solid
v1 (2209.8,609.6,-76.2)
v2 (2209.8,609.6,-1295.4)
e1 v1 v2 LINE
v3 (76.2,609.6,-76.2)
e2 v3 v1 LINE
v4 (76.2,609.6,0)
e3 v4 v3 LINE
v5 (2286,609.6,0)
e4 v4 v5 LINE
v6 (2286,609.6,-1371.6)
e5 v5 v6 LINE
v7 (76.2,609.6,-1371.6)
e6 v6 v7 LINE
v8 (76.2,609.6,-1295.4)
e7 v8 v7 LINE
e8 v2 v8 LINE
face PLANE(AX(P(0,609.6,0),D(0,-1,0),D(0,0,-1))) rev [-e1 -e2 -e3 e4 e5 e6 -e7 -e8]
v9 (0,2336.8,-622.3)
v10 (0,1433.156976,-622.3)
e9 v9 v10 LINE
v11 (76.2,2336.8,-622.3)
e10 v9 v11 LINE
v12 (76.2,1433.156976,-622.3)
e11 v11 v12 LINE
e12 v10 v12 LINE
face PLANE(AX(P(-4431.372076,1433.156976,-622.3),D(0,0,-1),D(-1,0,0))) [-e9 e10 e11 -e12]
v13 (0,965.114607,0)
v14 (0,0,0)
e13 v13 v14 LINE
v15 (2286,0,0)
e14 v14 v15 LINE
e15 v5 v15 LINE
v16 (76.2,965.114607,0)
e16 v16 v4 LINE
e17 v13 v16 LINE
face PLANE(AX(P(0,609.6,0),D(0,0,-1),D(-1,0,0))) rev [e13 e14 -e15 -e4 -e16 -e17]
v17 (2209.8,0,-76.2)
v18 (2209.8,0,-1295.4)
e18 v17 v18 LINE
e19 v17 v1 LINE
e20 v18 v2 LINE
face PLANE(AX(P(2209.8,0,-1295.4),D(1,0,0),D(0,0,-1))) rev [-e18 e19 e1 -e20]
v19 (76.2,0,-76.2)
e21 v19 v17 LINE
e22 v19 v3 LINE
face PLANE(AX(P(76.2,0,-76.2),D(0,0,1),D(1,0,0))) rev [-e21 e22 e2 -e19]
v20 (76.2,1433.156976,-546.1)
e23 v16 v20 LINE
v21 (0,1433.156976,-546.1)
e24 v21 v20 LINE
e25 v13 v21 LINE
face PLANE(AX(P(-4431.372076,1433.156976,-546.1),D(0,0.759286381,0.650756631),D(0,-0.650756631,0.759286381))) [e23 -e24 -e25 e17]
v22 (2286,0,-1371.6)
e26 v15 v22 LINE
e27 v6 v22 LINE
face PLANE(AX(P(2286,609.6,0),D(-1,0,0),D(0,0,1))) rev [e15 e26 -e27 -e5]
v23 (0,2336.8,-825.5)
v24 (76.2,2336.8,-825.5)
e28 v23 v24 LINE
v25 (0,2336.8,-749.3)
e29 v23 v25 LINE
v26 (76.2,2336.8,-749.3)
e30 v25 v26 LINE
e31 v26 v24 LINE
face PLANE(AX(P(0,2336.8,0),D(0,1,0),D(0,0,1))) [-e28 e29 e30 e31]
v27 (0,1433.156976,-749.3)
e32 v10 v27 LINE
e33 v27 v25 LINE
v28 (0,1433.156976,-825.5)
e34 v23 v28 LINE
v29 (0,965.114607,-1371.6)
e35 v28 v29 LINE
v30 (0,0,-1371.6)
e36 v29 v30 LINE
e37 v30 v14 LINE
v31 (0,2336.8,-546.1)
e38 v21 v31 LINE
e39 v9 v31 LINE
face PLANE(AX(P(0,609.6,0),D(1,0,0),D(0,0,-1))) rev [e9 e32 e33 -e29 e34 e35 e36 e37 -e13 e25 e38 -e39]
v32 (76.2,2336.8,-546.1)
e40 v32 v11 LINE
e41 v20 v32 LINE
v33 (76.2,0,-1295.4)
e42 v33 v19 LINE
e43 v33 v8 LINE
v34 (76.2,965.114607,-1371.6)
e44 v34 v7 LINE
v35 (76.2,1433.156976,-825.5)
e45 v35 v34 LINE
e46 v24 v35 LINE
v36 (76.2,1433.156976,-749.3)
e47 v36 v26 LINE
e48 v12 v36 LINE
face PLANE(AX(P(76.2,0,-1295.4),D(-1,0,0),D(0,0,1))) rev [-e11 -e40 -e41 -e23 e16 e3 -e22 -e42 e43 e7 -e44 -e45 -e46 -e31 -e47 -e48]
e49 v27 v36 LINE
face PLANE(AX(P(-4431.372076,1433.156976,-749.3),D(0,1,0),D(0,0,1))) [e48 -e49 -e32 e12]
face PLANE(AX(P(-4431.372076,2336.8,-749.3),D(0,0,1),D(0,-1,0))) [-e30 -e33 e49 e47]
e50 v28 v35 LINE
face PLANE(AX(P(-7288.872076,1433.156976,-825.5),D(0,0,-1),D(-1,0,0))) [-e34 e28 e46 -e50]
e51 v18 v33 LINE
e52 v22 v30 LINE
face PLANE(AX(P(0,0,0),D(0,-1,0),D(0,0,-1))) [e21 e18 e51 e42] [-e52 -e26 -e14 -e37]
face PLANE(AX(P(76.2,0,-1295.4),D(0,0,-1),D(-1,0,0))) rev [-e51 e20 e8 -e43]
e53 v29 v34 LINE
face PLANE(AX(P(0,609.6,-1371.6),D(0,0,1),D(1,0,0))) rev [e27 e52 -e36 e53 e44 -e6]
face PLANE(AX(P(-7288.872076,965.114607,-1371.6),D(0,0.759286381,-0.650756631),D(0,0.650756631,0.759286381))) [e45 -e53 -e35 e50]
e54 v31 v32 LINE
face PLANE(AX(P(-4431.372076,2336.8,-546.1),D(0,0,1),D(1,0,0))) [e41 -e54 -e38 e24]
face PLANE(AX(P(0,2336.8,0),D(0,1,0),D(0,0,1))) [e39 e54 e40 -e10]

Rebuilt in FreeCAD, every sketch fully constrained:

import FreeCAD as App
import Part
import Sketcher

V = App.Vector
Q = App.Units.Quantity

doc = App.newDocument("Part")
params = doc.addObject("Spreadsheet::Sheet", "Params")
for row, (alias, value) in enumerate([
    ("sketch1_width", "90 in"),
    ("sketch1_height", "54 in"),
    ("pad1_length", "24 in"),
    ("sketch2_width", "84 in"),
    ("sketch2_height", "48 in"),
    ("pocket1_length", "24 in"),
    ("sketch3_width", "3 in"),
    ("sketch3_height", "54 in"),
    ("pad2_length", "68 in"),
    ("sketch5_height", "5 in"),
    ("sketch5_height2", "3 in"),
], start=1):
    params.set(f"A{row}", alias)
    params.set(f"B{row}", "=" + value)
    params.setAlias(f"B{row}", alias)

body = doc.addObject("PartDesign::Body", "Body")

sketch1 = body.newObject("Sketcher::SketchObject", "Sketch")
sketch1.AttachmentSupport = (doc.getObject("XZ_Plane"), [""])
sketch1.MapMode = "FlatFace"
sketch1.addGeometry([
    Part.LineSegment(V(0, -1372, 0), V(0, 0, 0)),
    Part.LineSegment(V(0, 0, 0), V(2286, 0, 0)),
    Part.LineSegment(V(2286, 0, 0), V(2286, -1372, 0)),
    Part.LineSegment(V(2286, -1372, 0), V(0, -1372, 0)),
], False)
sketch1.addConstraint([
    Sketcher.Constraint("Coincident", 0, 2, 1, 1),
    Sketcher.Constraint("Coincident", 1, 2, 2, 1),
    Sketcher.Constraint("Coincident", 2, 2, 3, 1),
    Sketcher.Constraint("Coincident", 3, 2, 0, 1),
    Sketcher.Constraint("Vertical", 0),
    Sketcher.Constraint("Horizontal", 1),
    Sketcher.Constraint("Vertical", 2),
    Sketcher.Constraint("Horizontal", 3),
    Sketcher.Constraint("Coincident", 0, 2, -1, 1),
    Sketcher.Constraint("DistanceX", 1, 1, 1, 2, Q("90 in")),
    Sketcher.Constraint("DistanceY", 0, 1, 0, 2, Q("54 in")),
])
sketch1.setExpression("Constraints[9]", "Params.sketch1_width")
sketch1.setExpression("Constraints[10]", "Params.sketch1_height")
pad1 = body.newObject("PartDesign::Pad", "Pad")
pad1.Profile = sketch1
pad1.setExpression("Length", "Params.pad1_length")
pad1.Reversed = True

sketch2 = body.newObject("Sketcher::SketchObject", "Sketch001")
sketch2.AttachmentSupport = (doc.getObject("XZ_Plane"), [""])
sketch2.MapMode = "FlatFace"
sketch2.AttachmentOffset = App.Placement(V(0, 0, -24 * 25.4), App.Rotation())
sketch2.addGeometry([
    Part.LineSegment(V(76, -1295, 0), V(76, -76, 0)),
    Part.LineSegment(V(76, -76, 0), V(2210, -76, 0)),
    Part.LineSegment(V(2210, -76, 0), V(2210, -1295, 0)),
    Part.LineSegment(V(2210, -1295, 0), V(76, -1295, 0)),
], False)
sketch2.addConstraint([
    Sketcher.Constraint("Coincident", 0, 2, 1, 1),
    Sketcher.Constraint("Coincident", 1, 2, 2, 1),
    Sketcher.Constraint("Coincident", 2, 2, 3, 1),
    Sketcher.Constraint("Coincident", 3, 2, 0, 1),
    Sketcher.Constraint("Vertical", 0),
    Sketcher.Constraint("Horizontal", 1),
    Sketcher.Constraint("Vertical", 2),
    Sketcher.Constraint("Horizontal", 3),
    Sketcher.Constraint("DistanceX", 1, 1, 1, 2, Q("84 in")),
    Sketcher.Constraint("DistanceY", 0, 1, 0, 2, Q("48 in")),
    Sketcher.Constraint("DistanceX", -1, 1, 0, 2, Q("3 in")),
    Sketcher.Constraint("DistanceY", 0, 2, -1, 1, Q("3 in")),
])
sketch2.setExpression("Constraints[8]", "Params.sketch2_width")
sketch2.setExpression("Constraints[9]", "Params.sketch2_height")
pocket1 = body.newObject("PartDesign::Pocket", "Pocket")
pocket1.Profile = sketch2
pocket1.setExpression("Length", "Params.pocket1_length")
pocket1.Reversed = True

sketch3 = body.newObject("Sketcher::SketchObject", "Sketch002")
sketch3.AttachmentSupport = (doc.getObject("XZ_Plane"), [""])
sketch3.MapMode = "FlatFace"
sketch3.AttachmentOffset = App.Placement(V(0, 0, -24 * 25.4), App.Rotation())
sketch3.addGeometry([
    Part.LineSegment(V(0, -1372, 0), V(0, 0, 0)),
    Part.LineSegment(V(0, 0, 0), V(76, 0, 0)),
    Part.LineSegment(V(76, 0, 0), V(76, -1372, 0)),
    Part.LineSegment(V(76, -1372, 0), V(0, -1372, 0)),
], False)
sketch3.addConstraint([
    Sketcher.Constraint("Coincident", 0, 2, 1, 1),
    Sketcher.Constraint("Coincident", 1, 2, 2, 1),
    Sketcher.Constraint("Coincident", 2, 2, 3, 1),
    Sketcher.Constraint("Coincident", 3, 2, 0, 1),
    Sketcher.Constraint("Vertical", 0),
    Sketcher.Constraint("Horizontal", 1),
    Sketcher.Constraint("Vertical", 2),
    Sketcher.Constraint("Horizontal", 3),
    Sketcher.Constraint("Coincident", 0, 2, -1, 1),
    Sketcher.Constraint("DistanceX", 1, 1, 1, 2, Q("3 in")),
    Sketcher.Constraint("DistanceY", 0, 1, 0, 2, Q("54 in")),
])
sketch3.setExpression("Constraints[9]", "Params.sketch3_width")
sketch3.setExpression("Constraints[10]", "Params.sketch3_height")
pad2 = body.newObject("PartDesign::Pad", "Pad001")
pad2.Profile = sketch3
pad2.setExpression("Length", "Params.pad2_length")
pad2.Reversed = True

sketch4 = body.newObject("Sketcher::SketchObject", "Sketch003")
sketch4.AttachmentSupport = (doc.getObject("YZ_Plane"), [""])
sketch4.MapMode = "FlatFace"
sketch4.addGeometry([
    Part.LineSegment(V(-2267, -5143, 0), V(1433, -826, 0)),
    Part.LineSegment(V(1433, -826, 0), V(7303, -826, 0)),
    Part.LineSegment(V(7303, -826, 0), V(11388, -9880, 0)),
    Part.LineSegment(V(11388, -9880, 0), V(1818, -14197, 0)),
    Part.LineSegment(V(1818, -14197, 0), V(-2267, -5143, 0)),
], False)
sketch4.addConstraint([
    Sketcher.Constraint("Coincident", 0, 2, 1, 1),
    Sketcher.Constraint("Coincident", 1, 2, 2, 1),
    Sketcher.Constraint("Coincident", 2, 2, 3, 1),
    Sketcher.Constraint("Coincident", 3, 2, 4, 1),
    Sketcher.Constraint("Coincident", 4, 2, 0, 1),
    Sketcher.Constraint("Horizontal", 1),
    Sketcher.Constraint("Perpendicular", 2, 3),
    Sketcher.Constraint("Perpendicular", 3, 4),
    Sketcher.Constraint("Equal", 2, 4),
    Sketcher.Constraint("DistanceY", 0, 2, -1, 1, Q("32.5 in")),
    Sketcher.Constraint("Distance", 3, 10499.095181),
    Sketcher.Constraint("DistanceX", 1, 1, 1, 2, 5870.288862),
    Sketcher.Constraint("DistanceX", -1, 1, 2, 2, 11387.995131),
    Sketcher.Constraint("DistanceY", 2, 2, -1, 1, 9880.152979),
    Sketcher.Constraint("DistanceX", -1, 1, 3, 2, 1817.58619),
])
pocket2 = body.newObject("PartDesign::Pocket", "Pocket001")
pocket2.Profile = sketch4
pocket2.Type = "ThroughAll"
pocket2.Midplane = True

sketch5 = body.newObject("Sketcher::SketchObject", "Sketch004")
sketch5.AttachmentSupport = (doc.getObject("YZ_Plane"), [""])
sketch5.MapMode = "FlatFace"
sketch5.addGeometry([
    Part.LineSegment(V(2337, -5792, 0), V(2337, -749, 0)),
    Part.LineSegment(V(2337, -749, 0), V(1433, -749, 0)),
    Part.LineSegment(V(1433, -749, 0), V(1433, -622, 0)),
    Part.LineSegment(V(1433, -622, 0), V(2337, -622, 0)),
    Part.LineSegment(V(2337, -622, 0), V(2337, -546, 0)),
    Part.LineSegment(V(2337, -546, 0), V(1433, -546, 0)),
    Part.LineSegment(V(1433, -546, 0), V(-2267, 3771, 0)),
    Part.LineSegment(V(-2267, 3771, 0), V(6683, 8080, 0)),
    Part.LineSegment(V(6683, 8080, 0), V(11287, -1484, 0)),
    Part.LineSegment(V(11287, -1484, 0), V(2337, -5792, 0)),
], False)
sketch5.addConstraint([
    Sketcher.Constraint("Coincident", 0, 2, 1, 1),
    Sketcher.Constraint("Coincident", 1, 2, 2, 1),
    Sketcher.Constraint("Coincident", 2, 2, 3, 1),
    Sketcher.Constraint("Coincident", 3, 2, 4, 1),
    Sketcher.Constraint("Coincident", 4, 2, 5, 1),
    Sketcher.Constraint("Coincident", 5, 2, 6, 1),
    Sketcher.Constraint("Coincident", 6, 2, 7, 1),
    Sketcher.Constraint("Coincident", 7, 2, 8, 1),
    Sketcher.Constraint("Coincident", 8, 2, 9, 1),
    Sketcher.Constraint("Coincident", 9, 2, 0, 1),
    Sketcher.Constraint("Vertical", 0),
    Sketcher.Constraint("Horizontal", 1),
    Sketcher.Constraint("Vertical", 2),
    Sketcher.Constraint("Horizontal", 3),
    Sketcher.Constraint("Vertical", 4),
    Sketcher.Constraint("Horizontal", 5),
    Sketcher.Constraint("Perpendicular", 7, 8),
    Sketcher.Constraint("Perpendicular", 8, 9),
    Sketcher.Constraint("Vertical", 0, 2, 3, 2),
    Sketcher.Constraint("Vertical", 2, 2, 5, 2),
    Sketcher.Constraint("Equal", 7, 9),
    Sketcher.Constraint("DistanceY", 2, 1, 2, 2, Q("5 in")),
    Sketcher.Constraint("DistanceY", 4, 1, 4, 2, Q("3 in")),
    Sketcher.Constraint("DistanceX", -1, 1, 0, 2, Q("92 in")),
    Sketcher.Constraint("DistanceY", 0, 2, -1, 1, Q("29.5 in")),
    Sketcher.Constraint("DistanceX", 1, 2, 1, 1, 903.643024),
    Sketcher.Constraint("DistanceY", 0, 1, 0, 2, 5042.845838),
    Sketcher.Constraint("DistanceX", -1, 1, 7, 2, 6683.22941),
    Sketcher.Constraint("DistanceX", 6, 2, 5, 2, 3700.120079),
    Sketcher.Constraint("Distance", 6, 5685.873805),
])
sketch5.setExpression("Constraints[21]", "Params.sketch5_height")
sketch5.setExpression("Constraints[22]", "Params.sketch5_height2")
pocket3 = body.newObject("PartDesign::Pocket", "Pocket002")
pocket3.Profile = sketch5
pocket3.Type = "ThroughAll"
pocket3.Midplane = True

doc.recompute()
